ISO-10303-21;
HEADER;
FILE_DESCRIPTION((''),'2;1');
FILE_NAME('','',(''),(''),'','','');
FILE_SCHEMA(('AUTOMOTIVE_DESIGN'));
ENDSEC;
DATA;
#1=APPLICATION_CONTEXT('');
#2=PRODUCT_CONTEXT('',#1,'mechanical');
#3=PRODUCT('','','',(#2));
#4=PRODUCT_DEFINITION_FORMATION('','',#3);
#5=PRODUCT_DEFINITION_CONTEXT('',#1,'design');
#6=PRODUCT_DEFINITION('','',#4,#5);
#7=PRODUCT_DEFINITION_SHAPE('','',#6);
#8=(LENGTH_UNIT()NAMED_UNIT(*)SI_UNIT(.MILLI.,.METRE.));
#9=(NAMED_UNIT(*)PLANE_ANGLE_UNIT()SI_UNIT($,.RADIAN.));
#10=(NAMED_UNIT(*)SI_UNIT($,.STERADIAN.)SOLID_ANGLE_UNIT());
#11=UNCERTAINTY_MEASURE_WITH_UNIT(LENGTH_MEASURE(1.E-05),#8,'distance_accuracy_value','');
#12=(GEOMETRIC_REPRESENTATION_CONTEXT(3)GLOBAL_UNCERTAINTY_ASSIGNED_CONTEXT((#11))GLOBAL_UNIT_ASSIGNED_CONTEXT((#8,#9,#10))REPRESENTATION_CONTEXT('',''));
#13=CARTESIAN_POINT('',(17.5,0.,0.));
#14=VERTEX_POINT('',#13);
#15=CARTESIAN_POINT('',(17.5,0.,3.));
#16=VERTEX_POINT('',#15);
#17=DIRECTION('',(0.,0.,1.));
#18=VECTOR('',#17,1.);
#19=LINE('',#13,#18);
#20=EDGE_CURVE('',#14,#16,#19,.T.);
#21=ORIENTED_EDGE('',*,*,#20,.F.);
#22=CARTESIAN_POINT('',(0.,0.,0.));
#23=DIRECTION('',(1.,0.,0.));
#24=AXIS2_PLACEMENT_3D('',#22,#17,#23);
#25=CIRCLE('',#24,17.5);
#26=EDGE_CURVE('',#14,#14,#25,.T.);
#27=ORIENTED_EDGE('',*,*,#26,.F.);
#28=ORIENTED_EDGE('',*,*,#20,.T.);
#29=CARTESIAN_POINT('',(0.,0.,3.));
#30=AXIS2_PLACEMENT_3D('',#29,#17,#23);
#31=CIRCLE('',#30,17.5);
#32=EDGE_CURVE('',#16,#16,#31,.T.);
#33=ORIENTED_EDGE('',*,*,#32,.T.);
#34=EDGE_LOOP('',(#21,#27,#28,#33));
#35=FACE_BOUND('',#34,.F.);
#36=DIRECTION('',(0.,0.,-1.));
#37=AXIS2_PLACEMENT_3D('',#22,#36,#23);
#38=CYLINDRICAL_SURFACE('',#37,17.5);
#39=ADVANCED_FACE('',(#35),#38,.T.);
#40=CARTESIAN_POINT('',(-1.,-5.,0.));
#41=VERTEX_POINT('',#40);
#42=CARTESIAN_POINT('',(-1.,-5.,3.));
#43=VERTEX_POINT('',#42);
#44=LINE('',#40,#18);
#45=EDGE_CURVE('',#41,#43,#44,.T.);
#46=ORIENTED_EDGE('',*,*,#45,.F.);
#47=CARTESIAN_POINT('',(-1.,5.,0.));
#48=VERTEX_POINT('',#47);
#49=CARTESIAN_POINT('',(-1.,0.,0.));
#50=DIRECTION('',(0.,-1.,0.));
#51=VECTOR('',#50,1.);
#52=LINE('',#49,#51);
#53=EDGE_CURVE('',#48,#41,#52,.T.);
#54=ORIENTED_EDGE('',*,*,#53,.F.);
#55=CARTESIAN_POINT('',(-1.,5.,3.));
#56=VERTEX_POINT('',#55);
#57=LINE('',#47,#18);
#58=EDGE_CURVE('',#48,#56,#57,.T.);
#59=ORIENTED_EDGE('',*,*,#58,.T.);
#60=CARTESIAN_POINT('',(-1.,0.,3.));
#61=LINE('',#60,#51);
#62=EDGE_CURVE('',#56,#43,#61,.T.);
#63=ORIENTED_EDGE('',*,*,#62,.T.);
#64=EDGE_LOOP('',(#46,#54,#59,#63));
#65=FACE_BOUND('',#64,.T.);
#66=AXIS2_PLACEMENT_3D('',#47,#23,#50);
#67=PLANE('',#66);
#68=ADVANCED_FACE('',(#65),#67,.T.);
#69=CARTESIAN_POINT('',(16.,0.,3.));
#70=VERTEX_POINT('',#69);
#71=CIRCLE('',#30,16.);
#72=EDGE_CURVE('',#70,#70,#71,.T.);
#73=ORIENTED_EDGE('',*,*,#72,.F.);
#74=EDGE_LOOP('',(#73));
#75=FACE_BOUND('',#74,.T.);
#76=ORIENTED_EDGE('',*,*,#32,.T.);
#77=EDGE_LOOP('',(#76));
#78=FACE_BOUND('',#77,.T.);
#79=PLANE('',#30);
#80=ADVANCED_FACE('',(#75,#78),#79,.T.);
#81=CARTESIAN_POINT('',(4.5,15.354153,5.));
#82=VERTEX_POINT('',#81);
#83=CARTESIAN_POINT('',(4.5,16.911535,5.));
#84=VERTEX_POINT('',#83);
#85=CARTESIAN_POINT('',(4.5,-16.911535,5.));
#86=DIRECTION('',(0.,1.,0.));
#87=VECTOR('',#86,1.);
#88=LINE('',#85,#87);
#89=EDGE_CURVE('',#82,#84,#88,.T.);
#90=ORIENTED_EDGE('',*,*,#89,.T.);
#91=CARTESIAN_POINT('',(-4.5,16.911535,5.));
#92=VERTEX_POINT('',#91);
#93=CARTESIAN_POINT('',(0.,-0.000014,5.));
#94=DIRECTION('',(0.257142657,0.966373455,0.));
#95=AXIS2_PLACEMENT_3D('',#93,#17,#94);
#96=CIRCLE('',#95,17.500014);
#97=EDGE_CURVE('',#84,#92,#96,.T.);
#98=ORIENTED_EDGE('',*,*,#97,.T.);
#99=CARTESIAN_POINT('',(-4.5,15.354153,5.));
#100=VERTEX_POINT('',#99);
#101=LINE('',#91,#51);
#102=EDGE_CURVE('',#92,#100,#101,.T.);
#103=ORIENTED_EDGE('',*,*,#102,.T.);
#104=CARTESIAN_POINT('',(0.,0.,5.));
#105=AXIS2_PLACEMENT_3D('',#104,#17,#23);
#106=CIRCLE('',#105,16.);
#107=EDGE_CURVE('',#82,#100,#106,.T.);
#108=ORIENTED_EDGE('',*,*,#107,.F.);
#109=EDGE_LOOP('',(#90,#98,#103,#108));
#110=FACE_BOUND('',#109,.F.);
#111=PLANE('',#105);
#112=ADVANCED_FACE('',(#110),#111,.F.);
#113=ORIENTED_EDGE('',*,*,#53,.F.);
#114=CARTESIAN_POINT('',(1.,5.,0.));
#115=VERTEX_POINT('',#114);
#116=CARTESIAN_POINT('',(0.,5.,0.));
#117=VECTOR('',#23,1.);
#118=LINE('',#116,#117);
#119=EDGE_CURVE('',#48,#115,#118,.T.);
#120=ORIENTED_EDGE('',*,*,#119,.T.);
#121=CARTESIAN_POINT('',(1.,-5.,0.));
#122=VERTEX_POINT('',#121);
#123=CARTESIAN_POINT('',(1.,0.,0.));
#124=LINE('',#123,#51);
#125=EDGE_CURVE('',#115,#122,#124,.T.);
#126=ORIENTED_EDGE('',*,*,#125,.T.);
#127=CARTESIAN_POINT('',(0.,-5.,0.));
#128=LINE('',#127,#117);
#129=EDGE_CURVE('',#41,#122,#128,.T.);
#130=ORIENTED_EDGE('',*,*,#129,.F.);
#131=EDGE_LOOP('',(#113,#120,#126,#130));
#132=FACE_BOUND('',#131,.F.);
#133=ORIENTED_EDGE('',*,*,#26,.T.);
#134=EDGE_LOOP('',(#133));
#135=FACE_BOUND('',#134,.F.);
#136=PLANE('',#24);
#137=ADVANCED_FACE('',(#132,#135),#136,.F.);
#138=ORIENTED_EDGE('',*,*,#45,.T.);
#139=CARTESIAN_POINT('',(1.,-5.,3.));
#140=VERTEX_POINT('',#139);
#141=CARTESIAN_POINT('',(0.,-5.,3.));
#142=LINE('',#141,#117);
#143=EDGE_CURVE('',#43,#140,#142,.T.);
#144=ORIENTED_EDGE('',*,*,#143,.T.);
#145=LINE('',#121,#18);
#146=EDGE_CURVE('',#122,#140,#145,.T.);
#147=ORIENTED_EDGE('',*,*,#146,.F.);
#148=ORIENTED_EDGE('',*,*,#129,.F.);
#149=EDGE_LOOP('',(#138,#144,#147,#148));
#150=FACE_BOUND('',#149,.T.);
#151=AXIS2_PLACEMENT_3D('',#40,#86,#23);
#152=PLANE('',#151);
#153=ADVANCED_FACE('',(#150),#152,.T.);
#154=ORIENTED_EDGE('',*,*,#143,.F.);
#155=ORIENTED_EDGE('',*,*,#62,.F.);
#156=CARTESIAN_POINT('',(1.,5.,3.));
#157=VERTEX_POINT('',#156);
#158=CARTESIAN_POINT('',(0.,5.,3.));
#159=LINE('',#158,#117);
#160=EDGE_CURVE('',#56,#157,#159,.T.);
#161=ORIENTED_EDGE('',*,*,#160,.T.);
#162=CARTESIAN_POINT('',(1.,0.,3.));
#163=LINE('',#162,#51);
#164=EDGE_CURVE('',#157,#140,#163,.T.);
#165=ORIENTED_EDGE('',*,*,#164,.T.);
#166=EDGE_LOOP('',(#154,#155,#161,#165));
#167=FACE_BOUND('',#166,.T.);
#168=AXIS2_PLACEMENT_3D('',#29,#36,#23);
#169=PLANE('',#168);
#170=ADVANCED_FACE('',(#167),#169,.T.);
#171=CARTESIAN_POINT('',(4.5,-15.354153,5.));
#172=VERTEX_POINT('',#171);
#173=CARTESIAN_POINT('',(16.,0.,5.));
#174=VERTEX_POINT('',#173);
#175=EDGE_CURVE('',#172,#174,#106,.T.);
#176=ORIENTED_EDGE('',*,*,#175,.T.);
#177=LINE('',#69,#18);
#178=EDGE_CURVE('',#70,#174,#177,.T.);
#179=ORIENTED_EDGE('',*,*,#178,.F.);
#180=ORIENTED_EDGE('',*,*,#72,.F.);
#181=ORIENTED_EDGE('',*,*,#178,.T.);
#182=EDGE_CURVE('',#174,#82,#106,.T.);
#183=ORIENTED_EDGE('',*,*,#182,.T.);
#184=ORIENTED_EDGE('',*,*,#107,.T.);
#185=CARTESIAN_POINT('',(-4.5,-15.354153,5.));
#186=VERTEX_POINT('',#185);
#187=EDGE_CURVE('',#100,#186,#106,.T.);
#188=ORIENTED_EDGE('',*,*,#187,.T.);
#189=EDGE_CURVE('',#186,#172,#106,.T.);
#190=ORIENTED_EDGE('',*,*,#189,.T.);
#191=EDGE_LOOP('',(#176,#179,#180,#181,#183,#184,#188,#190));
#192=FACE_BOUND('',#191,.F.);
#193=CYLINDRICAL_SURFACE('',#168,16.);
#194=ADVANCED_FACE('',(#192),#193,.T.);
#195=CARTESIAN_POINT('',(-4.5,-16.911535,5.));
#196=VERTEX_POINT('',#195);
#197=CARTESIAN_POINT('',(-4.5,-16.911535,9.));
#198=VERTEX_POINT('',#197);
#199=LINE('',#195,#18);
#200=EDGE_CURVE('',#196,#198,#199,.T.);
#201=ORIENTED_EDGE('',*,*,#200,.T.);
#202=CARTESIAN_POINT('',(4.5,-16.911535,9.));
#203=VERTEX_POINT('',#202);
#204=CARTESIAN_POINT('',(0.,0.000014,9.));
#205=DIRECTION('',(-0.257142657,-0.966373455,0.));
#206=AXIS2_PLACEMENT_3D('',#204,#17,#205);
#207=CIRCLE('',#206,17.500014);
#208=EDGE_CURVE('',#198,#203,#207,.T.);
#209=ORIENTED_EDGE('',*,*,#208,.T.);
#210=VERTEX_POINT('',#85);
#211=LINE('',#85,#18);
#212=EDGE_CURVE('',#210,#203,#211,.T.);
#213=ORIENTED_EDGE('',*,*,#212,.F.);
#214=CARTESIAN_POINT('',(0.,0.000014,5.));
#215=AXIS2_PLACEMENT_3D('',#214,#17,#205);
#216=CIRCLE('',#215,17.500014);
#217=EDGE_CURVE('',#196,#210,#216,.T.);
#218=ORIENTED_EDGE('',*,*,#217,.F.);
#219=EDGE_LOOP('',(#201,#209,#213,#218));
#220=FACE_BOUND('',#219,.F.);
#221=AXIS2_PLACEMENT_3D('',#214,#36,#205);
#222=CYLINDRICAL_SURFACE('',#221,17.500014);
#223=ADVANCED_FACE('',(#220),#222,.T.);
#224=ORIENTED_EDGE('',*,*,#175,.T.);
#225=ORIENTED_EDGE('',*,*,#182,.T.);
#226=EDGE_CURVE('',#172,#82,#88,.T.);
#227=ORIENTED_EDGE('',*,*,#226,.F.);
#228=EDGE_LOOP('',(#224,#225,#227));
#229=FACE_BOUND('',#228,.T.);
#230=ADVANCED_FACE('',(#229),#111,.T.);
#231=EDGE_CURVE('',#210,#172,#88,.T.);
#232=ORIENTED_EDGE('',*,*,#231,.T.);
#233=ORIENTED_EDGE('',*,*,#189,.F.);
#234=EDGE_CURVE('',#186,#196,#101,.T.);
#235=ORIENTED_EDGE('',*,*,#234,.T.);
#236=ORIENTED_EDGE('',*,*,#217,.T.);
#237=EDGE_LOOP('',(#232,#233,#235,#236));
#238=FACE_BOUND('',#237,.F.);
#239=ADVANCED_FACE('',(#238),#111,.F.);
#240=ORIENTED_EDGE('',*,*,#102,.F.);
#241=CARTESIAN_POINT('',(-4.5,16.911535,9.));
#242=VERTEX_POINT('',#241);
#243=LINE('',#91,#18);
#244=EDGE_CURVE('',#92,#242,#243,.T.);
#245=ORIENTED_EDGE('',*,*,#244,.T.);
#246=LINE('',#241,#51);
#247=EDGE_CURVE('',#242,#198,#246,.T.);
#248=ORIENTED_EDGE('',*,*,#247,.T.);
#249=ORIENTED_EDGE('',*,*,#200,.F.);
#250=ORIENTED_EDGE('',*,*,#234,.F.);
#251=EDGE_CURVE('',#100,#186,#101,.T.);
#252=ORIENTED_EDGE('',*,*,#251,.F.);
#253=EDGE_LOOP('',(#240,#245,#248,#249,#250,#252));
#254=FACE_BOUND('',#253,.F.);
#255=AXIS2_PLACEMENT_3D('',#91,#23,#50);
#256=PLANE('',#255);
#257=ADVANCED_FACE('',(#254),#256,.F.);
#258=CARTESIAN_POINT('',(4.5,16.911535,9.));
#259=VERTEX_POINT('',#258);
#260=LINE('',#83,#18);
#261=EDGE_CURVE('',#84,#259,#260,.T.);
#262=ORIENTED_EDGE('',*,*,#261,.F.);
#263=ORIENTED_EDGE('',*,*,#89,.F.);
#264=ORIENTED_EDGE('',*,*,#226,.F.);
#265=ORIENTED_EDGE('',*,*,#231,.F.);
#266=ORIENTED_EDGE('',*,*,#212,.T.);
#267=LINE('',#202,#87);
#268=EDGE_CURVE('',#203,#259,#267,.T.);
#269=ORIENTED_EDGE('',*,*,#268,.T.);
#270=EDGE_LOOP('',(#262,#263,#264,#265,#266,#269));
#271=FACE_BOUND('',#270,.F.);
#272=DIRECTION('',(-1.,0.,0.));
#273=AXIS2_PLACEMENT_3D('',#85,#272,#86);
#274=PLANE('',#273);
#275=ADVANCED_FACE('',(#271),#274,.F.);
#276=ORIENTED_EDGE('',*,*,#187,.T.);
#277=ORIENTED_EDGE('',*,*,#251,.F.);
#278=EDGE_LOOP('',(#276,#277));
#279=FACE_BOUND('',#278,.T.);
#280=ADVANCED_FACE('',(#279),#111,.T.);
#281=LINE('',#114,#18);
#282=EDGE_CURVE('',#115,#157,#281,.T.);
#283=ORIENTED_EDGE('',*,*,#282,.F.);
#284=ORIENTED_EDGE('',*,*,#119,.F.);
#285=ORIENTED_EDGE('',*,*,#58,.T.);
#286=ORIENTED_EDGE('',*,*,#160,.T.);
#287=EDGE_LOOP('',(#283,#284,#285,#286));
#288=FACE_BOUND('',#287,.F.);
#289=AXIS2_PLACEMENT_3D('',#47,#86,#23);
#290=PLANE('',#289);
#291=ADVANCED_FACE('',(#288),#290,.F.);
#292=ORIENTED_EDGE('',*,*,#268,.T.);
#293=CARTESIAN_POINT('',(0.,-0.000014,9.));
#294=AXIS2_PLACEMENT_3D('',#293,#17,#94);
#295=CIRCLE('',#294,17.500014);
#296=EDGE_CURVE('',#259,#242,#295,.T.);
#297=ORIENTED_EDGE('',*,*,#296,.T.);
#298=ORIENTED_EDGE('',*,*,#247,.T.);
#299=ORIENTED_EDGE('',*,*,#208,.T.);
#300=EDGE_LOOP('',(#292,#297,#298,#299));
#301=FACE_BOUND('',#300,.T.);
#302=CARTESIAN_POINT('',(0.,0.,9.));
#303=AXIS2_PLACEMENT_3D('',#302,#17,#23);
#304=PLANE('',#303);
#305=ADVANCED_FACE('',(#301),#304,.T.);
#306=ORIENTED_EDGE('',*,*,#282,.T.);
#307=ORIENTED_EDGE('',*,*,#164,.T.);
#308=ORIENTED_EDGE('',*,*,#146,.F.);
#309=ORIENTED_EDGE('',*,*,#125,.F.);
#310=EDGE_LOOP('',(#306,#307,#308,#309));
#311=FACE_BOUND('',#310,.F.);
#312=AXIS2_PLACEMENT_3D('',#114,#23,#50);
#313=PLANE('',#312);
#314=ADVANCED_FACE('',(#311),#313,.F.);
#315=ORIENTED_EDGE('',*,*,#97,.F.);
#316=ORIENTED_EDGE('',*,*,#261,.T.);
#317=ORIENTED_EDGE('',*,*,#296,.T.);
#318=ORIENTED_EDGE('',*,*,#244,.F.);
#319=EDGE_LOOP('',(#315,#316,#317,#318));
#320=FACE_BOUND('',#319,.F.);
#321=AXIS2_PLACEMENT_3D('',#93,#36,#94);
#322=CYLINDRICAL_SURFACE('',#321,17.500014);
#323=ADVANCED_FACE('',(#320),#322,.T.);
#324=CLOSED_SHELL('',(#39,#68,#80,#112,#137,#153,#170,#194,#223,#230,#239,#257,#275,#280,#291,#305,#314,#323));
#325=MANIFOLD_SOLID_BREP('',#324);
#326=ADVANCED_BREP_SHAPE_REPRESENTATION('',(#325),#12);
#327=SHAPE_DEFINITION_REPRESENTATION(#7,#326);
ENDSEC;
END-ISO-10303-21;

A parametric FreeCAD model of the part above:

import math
import FreeCAD as App
import Part
import Sketcher
from FreeCAD import Vector


def add_polygon(sketch, points):
    """Adds a closed chain of lines whose ends are joined by coincident constraints."""
    first, n = sketch.GeometryCount, len(points)
    for a, b in zip(points, points[1:] + points[:1]):
        sketch.addGeometry(Part.LineSegment(App.Vector(*a, 0), App.Vector(*b, 0)), False)
    for i in range(n):
        sketch.addConstraint(Sketcher.Constraint("Coincident", first + i, 2, first + (i + 1) % n, 1))

doc = App.newDocument("Part")
body = doc.addObject("PartDesign::Body", "Body")

sketch1 = body.newObject("Sketcher::SketchObject", "Sketch")
sketch1.AttachmentSupport = (doc.getObject("XY_Plane"), [""])
sketch1.MapMode = "FlatFace"
sketch1.addGeometry(Part.Circle(Vector(0, 0, 0), Vector(0, 0, 1), 18), False)
sketch1.addConstraint([
    Sketcher.Constraint("Coincident", 0, 3, -1, 1),
    Sketcher.Constraint("Diameter", 0, 35.0),
])
pad1 = body.newObject("PartDesign::Pad", "Pad")
pad1.Profile = sketch1
pad1.Length = 3

sketch2 = body.newObject("Sketcher::SketchObject", "Sketch001")
sketch2.AttachmentSupport = (doc.getObject("XY_Plane"), [""])
sketch2.MapMode = "FlatFace"
sketch2.AttachmentOffset = App.Placement(Vector(0, 0, 3), App.Rotation())
sketch2.addGeometry(Part.Circle(Vector(0, 0, 0), Vector(0, 0, 1), 16), False)
sketch2.addConstraint([
    Sketcher.Constraint("Coincident", 0, 3, -1, 1),
    Sketcher.Constraint("Diameter", 0, 32.0),
])
pad2 = body.newObject("PartDesign::Pad", "Pad001")
pad2.Profile = sketch2
pad2.Length = 2

sketch3 = body.newObject("Sketcher::SketchObject", "Sketch002")
sketch3.AttachmentSupport = (doc.getObject("XY_Plane"), [""])
sketch3.MapMode = "FlatFace"
sketch3.AttachmentOffset = App.Placement(Vector(0, 0, 5), App.Rotation())
sketch3.addGeometry([
    Part.LineSegment(Vector(4.5, -16.911535, 0), Vector(4.5, 16.911535, 0)),
    Part.ArcOfCircle(Part.Circle(Vector(0, -0.000014, 0), Vector(0, 0, 1), 17.500014), math.radians(75.099415), math.radians(104.900585)),
    Part.LineSegment(Vector(-4.5, 16.911535, 0), Vector(-4.5, -16.911535, 0)),
    Part.ArcOfCircle(Part.Circle(Vector(0, 0.000014, 0), Vector(0, 0, 1), 17.500014), math.radians(-104.900585), math.radians(-75.099415)),
], False)
sketch3.addConstraint([
    Sketcher.Constraint("Coincident", 0, 2, 1, 1),
    Sketcher.Constraint("Coincident", 1, 2, 2, 1),
    Sketcher.Constraint("Coincident", 2, 2, 3, 1),
    Sketcher.Constraint("Coincident", 3, 2, 0, 1),
    Sketcher.Constraint("Vertical", 0),
    Sketcher.Constraint("Vertical", 2),
    Sketcher.Constraint("Equal", 1, 3),
    Sketcher.Constraint("Symmetric", 1, 3, 3, 3, -1, 1),
    Sketcher.Constraint("Symmetric", 0, 2, 1, 2, -2),
    Sketcher.Constraint("DistanceX", 1, 2, 0, 2, 9.0),
    Sketcher.Constraint("Radius", 1, 17.500014),
    Sketcher.Constraint("DistanceY", 0, 1, 0, 2, 33.82307),
])
pad3 = body.newObject("PartDesign::Pad", "Pad002")
pad3.Profile = sketch3
pad3.Length = 4

sketch4 = body.newObject("Sketcher::SketchObject", "Sketch003")
sketch4.AttachmentSupport = (doc.getObject("XY_Plane"), [""])
sketch4.MapMode = "FlatFace"
add_polygon(sketch4, [(-1, -5), (-1, 5), (1, 5), (1, -5)])
sketch4.addConstraint([
    Sketcher.Constraint("Vertical", 0),
    Sketcher.Constraint("Horizontal", 1),
    Sketcher.Constraint("Vertical", 2),
    Sketcher.Constraint("Horizontal", 3),
    Sketcher.Constraint("Symmetric", 0, 2, 2, 2, -1, 1),
    Sketcher.Constraint("DistanceX", 1, 1, 1, 2, 2.0),
    Sketcher.Constraint("DistanceY", 0, 1, 0, 2, 10.0),
])
pocket1 = body.newObject("PartDesign::Pocket", "Pocket")
pocket1.Profile = sketch4
pocket1.Length = 3
pocket1.Reversed = True

doc.recompute()
